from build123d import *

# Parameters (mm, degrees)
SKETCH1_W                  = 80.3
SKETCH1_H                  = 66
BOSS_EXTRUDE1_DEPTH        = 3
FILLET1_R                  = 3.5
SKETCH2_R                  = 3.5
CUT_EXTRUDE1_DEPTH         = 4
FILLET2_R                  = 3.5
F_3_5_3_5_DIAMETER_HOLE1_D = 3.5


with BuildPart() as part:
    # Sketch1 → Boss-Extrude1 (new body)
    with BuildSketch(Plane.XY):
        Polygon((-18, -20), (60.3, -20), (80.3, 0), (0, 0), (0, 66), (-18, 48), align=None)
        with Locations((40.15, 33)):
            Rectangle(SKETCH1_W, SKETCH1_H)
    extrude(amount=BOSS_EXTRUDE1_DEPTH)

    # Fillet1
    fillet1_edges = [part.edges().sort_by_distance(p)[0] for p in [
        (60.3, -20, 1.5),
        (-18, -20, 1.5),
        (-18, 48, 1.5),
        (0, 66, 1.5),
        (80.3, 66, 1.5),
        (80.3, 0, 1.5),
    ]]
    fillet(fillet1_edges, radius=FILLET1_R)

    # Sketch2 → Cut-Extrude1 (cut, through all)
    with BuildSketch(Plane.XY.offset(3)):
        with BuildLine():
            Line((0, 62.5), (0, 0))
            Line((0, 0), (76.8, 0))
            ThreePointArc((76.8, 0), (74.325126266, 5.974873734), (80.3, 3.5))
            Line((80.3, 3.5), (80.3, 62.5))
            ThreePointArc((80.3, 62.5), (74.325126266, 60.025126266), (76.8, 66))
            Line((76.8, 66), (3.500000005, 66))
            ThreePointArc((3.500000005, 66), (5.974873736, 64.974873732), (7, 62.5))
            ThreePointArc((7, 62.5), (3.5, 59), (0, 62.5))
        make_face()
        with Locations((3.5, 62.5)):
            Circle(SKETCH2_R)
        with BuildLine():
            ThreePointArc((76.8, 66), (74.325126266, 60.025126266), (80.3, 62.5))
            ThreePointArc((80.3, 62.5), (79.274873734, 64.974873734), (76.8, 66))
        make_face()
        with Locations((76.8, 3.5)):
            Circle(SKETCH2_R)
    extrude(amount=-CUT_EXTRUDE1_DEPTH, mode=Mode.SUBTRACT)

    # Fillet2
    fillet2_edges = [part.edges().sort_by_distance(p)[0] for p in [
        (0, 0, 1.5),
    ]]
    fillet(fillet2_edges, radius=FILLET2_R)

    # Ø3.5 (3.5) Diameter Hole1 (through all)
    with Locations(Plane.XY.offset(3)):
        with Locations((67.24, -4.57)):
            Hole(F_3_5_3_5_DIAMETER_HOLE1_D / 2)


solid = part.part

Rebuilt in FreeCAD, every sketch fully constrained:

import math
import FreeCAD as App
import Part
import Sketcher
Q = App.Units.Quantity


def edges_at(feature, points):
    """Names of the edges that pass closest to the given points."""
    edges = feature.Shape.Edges
    near = lambda p: min(range(len(edges)), key=lambda i: edges[i].distToShape(Part.Vertex(*p))[0])
    return sorted({f"Edge{near(p) + 1}" for p in points})


def add_polygon(sketch, points):
    """Adds a closed chain of lines whose ends are joined by coincident constraints."""
    first, n = sketch.GeometryCount, len(points)
    for a, b in zip(points, points[1:] + points[:1]):
        sketch.addGeometry(Part.LineSegment(App.Vector(*a, 0), App.Vector(*b, 0)), False)
    for i in range(n):
        sketch.addConstraint(Sketcher.Constraint("Coincident", first + i, 2, first + (i + 1) % n, 1))

doc = App.newDocument("Part")
body = doc.addObject("PartDesign::Body", "Body")

sketch1 = body.newObject("Sketcher::SketchObject", "Sketch")
sketch1.AttachmentSupport = (doc.getObject("XY_Plane"), [""])
sketch1.MapMode = "FlatFace"
add_polygon(sketch1, [(-18, -20), (60.3, -20), (80.3, 0), (80.3, 66), (0, 66), (-18, 48)])
sketch1.addConstraint(Sketcher.Constraint("Horizontal", 0))
sketch1.addConstraint(Sketcher.Constraint("Vertical", 2))
sketch1.addConstraint(Sketcher.Constraint("Horizontal", 3))
sketch1.addConstraint(Sketcher.Constraint("Vertical", 5))
sketch1.addConstraint(Sketcher.Constraint("PointOnObject", 1, 2, -1))
sketch1.addConstraint(Sketcher.Constraint("PointOnObject", 3, 2, -2))
sketch1.addConstraint(Sketcher.Constraint("Parallel", 1, 4))
sketch1.addConstraint(Sketcher.Constraint("DistanceY", 2, 1, 2, 2, Q("66 mm")))
sketch1.addConstraint(Sketcher.Constraint("DistanceY", 5, 2, 5, 1, Q("68 mm")))
sketch1.addConstraint(Sketcher.Constraint("Angle", 1, Q("45 deg")))
sketch1.addConstraint(Sketcher.Constraint("DistanceX", 0, 1, 0, 2, Q("78.3 mm")))
sketch1.addConstraint(Sketcher.Constraint("DistanceY", 0, 2, -1, 1, Q("20 mm")))
pad1 = body.newObject("PartDesign::Pad", "Pad")
pad1.Profile = sketch1
pad1.Length = 3
doc.recompute()

fillet = body.newObject("PartDesign::Fillet", "Fillet")
fillet.Base = (pad1, edges_at(pad1, [
    (60.3, -20, 1.5),
    (-18, -20, 1.5),
    (-18, 48, 1.5),
    (0, 66, 1.5),
    (80.3, 66, 1.5),
    (80.3, 0, 1.5),
]))
fillet.Radius = 3.5

sketch2 = body.newObject("Sketcher::SketchObject", "Sketch001")
sketch2.AttachmentSupport = (doc.getObject("XY_Plane"), [""])
sketch2.MapMode = "FlatFace"
sketch2.AttachmentOffset = App.Placement(App.Vector(0, 0, 3), App.Rotation())
sketch2.addGeometry(Part.LineSegment(App.Vector(0, 62.5, 0), App.Vector(0, 0, 0)), False)
sketch2.addGeometry(Part.LineSegment(App.Vector(0, 0, 0), App.Vector(76.8, 0, 0)), False)
sketch2.addGeometry(Part.ArcOfCircle(Part.Circle(App.Vector(76.8, 3.5, 0), App.Vector(0, 0, 1), 3.5), math.radians(-90), math.radians(0)), False)
sketch2.addGeometry(Part.LineSegment(App.Vector(80.3, 3.5, 0), App.Vector(80.3, 62.5, 0)), False)
sketch2.addGeometry(Part.ArcOfCircle(Part.Circle(App.Vector(76.8, 62.5, 0), App.Vector(0, 0, 1), 3.5), math.radians(0), math.radians(90)), False)
sketch2.addGeometry(Part.LineSegment(App.Vector(76.8, 66, 0), App.Vector(3.5, 66, 0)), False)
sketch2.addGeometry(Part.ArcOfCircle(Part.Circle(App.Vector(3.5, 62.5, 0), App.Vector(0, 0, 1), 3.5), math.radians(90), math.radians(180)), False)
sketch2.addConstraint(Sketcher.Constraint("Coincident", 0, 2, 1, 1))
sketch2.addConstraint(Sketcher.Constraint("Tangent", 1, 2, 2, 1))
sketch2.addConstraint(Sketcher.Constraint("Tangent", 2, 2, 3, 1))
sketch2.addConstraint(Sketcher.Constraint("Tangent", 3, 2, 4, 1))
sketch2.addConstraint(Sketcher.Constraint("Tangent", 4, 2, 5, 1))
sketch2.addConstraint(Sketcher.Constraint("Tangent", 5, 2, 6, 1))
sketch2.addConstraint(Sketcher.Constraint("Tangent", 6, 2, 0, 1))
sketch2.addConstraint(Sketcher.Constraint("Vertical", 0))
sketch2.addConstraint(Sketcher.Constraint("Horizontal", 1))
sketch2.addConstraint(Sketcher.Constraint("Vertical", 3))
sketch2.addConstraint(Sketcher.Constraint("Horizontal", 5))
sketch2.addConstraint(Sketcher.Constraint("Coincident", 0, 2, -1, 1))
sketch2.addConstraint(Sketcher.Constraint("Equal", 2, 4))
sketch2.addConstraint(Sketcher.Constraint("Equal", 4, 6))
sketch2.addConstraint(Sketcher.Constraint("Radius", 2, Q("3.5 mm")))
sketch2.addConstraint(Sketcher.Constraint("DistanceY", 3, 1, 3, 2, Q("59 mm")))
sketch2.addConstraint(Sketcher.Constraint("DistanceX", 1, 1, 1, 2, Q("76.8 mm")))
pocket1 = body.newObject("PartDesign::Pocket", "Pocket")
pocket1.Profile = sketch2
pocket1.Type = "ThroughAll"
doc.recompute()

fillet2 = body.newObject("PartDesign::Fillet", "Fillet001")
fillet2.Base = (pocket1, edges_at(pocket1, [(0, 0, 1.5)]))
fillet2.Radius = 3.5

sketch3 = body.newObject("Sketcher::SketchObject", "Sketch002")
sketch3.AttachmentSupport = (doc.getObject("XY_Plane"), [""])
sketch3.MapMode = "FlatFace"
sketch3.AttachmentOffset = App.Placement(App.Vector(0, 0, 3), App.Rotation())
sketch3.addGeometry(Part.Circle(App.Vector(67.24, -4.57, 0), App.Vector(0, 0, 1), 1.75), False)
sketch3.addConstraint(Sketcher.Constraint("Diameter", 0, Q("3.5 mm")))
sketch3.addConstraint(Sketcher.Constraint("DistanceX", -1, 1, 0, 3, Q("67.24 mm")))
sketch3.addConstraint(Sketcher.Constraint("DistanceY", 0, 3, -1, 1, Q("4.57 mm")))
doc.recompute()
hole = body.newObject("PartDesign::Hole", "Hole")
hole.Profile = sketch3
hole.ThreadType = "None"
hole.Diameter = 3.5
hole.DepthType = "ThroughAll"

doc.recompute()
